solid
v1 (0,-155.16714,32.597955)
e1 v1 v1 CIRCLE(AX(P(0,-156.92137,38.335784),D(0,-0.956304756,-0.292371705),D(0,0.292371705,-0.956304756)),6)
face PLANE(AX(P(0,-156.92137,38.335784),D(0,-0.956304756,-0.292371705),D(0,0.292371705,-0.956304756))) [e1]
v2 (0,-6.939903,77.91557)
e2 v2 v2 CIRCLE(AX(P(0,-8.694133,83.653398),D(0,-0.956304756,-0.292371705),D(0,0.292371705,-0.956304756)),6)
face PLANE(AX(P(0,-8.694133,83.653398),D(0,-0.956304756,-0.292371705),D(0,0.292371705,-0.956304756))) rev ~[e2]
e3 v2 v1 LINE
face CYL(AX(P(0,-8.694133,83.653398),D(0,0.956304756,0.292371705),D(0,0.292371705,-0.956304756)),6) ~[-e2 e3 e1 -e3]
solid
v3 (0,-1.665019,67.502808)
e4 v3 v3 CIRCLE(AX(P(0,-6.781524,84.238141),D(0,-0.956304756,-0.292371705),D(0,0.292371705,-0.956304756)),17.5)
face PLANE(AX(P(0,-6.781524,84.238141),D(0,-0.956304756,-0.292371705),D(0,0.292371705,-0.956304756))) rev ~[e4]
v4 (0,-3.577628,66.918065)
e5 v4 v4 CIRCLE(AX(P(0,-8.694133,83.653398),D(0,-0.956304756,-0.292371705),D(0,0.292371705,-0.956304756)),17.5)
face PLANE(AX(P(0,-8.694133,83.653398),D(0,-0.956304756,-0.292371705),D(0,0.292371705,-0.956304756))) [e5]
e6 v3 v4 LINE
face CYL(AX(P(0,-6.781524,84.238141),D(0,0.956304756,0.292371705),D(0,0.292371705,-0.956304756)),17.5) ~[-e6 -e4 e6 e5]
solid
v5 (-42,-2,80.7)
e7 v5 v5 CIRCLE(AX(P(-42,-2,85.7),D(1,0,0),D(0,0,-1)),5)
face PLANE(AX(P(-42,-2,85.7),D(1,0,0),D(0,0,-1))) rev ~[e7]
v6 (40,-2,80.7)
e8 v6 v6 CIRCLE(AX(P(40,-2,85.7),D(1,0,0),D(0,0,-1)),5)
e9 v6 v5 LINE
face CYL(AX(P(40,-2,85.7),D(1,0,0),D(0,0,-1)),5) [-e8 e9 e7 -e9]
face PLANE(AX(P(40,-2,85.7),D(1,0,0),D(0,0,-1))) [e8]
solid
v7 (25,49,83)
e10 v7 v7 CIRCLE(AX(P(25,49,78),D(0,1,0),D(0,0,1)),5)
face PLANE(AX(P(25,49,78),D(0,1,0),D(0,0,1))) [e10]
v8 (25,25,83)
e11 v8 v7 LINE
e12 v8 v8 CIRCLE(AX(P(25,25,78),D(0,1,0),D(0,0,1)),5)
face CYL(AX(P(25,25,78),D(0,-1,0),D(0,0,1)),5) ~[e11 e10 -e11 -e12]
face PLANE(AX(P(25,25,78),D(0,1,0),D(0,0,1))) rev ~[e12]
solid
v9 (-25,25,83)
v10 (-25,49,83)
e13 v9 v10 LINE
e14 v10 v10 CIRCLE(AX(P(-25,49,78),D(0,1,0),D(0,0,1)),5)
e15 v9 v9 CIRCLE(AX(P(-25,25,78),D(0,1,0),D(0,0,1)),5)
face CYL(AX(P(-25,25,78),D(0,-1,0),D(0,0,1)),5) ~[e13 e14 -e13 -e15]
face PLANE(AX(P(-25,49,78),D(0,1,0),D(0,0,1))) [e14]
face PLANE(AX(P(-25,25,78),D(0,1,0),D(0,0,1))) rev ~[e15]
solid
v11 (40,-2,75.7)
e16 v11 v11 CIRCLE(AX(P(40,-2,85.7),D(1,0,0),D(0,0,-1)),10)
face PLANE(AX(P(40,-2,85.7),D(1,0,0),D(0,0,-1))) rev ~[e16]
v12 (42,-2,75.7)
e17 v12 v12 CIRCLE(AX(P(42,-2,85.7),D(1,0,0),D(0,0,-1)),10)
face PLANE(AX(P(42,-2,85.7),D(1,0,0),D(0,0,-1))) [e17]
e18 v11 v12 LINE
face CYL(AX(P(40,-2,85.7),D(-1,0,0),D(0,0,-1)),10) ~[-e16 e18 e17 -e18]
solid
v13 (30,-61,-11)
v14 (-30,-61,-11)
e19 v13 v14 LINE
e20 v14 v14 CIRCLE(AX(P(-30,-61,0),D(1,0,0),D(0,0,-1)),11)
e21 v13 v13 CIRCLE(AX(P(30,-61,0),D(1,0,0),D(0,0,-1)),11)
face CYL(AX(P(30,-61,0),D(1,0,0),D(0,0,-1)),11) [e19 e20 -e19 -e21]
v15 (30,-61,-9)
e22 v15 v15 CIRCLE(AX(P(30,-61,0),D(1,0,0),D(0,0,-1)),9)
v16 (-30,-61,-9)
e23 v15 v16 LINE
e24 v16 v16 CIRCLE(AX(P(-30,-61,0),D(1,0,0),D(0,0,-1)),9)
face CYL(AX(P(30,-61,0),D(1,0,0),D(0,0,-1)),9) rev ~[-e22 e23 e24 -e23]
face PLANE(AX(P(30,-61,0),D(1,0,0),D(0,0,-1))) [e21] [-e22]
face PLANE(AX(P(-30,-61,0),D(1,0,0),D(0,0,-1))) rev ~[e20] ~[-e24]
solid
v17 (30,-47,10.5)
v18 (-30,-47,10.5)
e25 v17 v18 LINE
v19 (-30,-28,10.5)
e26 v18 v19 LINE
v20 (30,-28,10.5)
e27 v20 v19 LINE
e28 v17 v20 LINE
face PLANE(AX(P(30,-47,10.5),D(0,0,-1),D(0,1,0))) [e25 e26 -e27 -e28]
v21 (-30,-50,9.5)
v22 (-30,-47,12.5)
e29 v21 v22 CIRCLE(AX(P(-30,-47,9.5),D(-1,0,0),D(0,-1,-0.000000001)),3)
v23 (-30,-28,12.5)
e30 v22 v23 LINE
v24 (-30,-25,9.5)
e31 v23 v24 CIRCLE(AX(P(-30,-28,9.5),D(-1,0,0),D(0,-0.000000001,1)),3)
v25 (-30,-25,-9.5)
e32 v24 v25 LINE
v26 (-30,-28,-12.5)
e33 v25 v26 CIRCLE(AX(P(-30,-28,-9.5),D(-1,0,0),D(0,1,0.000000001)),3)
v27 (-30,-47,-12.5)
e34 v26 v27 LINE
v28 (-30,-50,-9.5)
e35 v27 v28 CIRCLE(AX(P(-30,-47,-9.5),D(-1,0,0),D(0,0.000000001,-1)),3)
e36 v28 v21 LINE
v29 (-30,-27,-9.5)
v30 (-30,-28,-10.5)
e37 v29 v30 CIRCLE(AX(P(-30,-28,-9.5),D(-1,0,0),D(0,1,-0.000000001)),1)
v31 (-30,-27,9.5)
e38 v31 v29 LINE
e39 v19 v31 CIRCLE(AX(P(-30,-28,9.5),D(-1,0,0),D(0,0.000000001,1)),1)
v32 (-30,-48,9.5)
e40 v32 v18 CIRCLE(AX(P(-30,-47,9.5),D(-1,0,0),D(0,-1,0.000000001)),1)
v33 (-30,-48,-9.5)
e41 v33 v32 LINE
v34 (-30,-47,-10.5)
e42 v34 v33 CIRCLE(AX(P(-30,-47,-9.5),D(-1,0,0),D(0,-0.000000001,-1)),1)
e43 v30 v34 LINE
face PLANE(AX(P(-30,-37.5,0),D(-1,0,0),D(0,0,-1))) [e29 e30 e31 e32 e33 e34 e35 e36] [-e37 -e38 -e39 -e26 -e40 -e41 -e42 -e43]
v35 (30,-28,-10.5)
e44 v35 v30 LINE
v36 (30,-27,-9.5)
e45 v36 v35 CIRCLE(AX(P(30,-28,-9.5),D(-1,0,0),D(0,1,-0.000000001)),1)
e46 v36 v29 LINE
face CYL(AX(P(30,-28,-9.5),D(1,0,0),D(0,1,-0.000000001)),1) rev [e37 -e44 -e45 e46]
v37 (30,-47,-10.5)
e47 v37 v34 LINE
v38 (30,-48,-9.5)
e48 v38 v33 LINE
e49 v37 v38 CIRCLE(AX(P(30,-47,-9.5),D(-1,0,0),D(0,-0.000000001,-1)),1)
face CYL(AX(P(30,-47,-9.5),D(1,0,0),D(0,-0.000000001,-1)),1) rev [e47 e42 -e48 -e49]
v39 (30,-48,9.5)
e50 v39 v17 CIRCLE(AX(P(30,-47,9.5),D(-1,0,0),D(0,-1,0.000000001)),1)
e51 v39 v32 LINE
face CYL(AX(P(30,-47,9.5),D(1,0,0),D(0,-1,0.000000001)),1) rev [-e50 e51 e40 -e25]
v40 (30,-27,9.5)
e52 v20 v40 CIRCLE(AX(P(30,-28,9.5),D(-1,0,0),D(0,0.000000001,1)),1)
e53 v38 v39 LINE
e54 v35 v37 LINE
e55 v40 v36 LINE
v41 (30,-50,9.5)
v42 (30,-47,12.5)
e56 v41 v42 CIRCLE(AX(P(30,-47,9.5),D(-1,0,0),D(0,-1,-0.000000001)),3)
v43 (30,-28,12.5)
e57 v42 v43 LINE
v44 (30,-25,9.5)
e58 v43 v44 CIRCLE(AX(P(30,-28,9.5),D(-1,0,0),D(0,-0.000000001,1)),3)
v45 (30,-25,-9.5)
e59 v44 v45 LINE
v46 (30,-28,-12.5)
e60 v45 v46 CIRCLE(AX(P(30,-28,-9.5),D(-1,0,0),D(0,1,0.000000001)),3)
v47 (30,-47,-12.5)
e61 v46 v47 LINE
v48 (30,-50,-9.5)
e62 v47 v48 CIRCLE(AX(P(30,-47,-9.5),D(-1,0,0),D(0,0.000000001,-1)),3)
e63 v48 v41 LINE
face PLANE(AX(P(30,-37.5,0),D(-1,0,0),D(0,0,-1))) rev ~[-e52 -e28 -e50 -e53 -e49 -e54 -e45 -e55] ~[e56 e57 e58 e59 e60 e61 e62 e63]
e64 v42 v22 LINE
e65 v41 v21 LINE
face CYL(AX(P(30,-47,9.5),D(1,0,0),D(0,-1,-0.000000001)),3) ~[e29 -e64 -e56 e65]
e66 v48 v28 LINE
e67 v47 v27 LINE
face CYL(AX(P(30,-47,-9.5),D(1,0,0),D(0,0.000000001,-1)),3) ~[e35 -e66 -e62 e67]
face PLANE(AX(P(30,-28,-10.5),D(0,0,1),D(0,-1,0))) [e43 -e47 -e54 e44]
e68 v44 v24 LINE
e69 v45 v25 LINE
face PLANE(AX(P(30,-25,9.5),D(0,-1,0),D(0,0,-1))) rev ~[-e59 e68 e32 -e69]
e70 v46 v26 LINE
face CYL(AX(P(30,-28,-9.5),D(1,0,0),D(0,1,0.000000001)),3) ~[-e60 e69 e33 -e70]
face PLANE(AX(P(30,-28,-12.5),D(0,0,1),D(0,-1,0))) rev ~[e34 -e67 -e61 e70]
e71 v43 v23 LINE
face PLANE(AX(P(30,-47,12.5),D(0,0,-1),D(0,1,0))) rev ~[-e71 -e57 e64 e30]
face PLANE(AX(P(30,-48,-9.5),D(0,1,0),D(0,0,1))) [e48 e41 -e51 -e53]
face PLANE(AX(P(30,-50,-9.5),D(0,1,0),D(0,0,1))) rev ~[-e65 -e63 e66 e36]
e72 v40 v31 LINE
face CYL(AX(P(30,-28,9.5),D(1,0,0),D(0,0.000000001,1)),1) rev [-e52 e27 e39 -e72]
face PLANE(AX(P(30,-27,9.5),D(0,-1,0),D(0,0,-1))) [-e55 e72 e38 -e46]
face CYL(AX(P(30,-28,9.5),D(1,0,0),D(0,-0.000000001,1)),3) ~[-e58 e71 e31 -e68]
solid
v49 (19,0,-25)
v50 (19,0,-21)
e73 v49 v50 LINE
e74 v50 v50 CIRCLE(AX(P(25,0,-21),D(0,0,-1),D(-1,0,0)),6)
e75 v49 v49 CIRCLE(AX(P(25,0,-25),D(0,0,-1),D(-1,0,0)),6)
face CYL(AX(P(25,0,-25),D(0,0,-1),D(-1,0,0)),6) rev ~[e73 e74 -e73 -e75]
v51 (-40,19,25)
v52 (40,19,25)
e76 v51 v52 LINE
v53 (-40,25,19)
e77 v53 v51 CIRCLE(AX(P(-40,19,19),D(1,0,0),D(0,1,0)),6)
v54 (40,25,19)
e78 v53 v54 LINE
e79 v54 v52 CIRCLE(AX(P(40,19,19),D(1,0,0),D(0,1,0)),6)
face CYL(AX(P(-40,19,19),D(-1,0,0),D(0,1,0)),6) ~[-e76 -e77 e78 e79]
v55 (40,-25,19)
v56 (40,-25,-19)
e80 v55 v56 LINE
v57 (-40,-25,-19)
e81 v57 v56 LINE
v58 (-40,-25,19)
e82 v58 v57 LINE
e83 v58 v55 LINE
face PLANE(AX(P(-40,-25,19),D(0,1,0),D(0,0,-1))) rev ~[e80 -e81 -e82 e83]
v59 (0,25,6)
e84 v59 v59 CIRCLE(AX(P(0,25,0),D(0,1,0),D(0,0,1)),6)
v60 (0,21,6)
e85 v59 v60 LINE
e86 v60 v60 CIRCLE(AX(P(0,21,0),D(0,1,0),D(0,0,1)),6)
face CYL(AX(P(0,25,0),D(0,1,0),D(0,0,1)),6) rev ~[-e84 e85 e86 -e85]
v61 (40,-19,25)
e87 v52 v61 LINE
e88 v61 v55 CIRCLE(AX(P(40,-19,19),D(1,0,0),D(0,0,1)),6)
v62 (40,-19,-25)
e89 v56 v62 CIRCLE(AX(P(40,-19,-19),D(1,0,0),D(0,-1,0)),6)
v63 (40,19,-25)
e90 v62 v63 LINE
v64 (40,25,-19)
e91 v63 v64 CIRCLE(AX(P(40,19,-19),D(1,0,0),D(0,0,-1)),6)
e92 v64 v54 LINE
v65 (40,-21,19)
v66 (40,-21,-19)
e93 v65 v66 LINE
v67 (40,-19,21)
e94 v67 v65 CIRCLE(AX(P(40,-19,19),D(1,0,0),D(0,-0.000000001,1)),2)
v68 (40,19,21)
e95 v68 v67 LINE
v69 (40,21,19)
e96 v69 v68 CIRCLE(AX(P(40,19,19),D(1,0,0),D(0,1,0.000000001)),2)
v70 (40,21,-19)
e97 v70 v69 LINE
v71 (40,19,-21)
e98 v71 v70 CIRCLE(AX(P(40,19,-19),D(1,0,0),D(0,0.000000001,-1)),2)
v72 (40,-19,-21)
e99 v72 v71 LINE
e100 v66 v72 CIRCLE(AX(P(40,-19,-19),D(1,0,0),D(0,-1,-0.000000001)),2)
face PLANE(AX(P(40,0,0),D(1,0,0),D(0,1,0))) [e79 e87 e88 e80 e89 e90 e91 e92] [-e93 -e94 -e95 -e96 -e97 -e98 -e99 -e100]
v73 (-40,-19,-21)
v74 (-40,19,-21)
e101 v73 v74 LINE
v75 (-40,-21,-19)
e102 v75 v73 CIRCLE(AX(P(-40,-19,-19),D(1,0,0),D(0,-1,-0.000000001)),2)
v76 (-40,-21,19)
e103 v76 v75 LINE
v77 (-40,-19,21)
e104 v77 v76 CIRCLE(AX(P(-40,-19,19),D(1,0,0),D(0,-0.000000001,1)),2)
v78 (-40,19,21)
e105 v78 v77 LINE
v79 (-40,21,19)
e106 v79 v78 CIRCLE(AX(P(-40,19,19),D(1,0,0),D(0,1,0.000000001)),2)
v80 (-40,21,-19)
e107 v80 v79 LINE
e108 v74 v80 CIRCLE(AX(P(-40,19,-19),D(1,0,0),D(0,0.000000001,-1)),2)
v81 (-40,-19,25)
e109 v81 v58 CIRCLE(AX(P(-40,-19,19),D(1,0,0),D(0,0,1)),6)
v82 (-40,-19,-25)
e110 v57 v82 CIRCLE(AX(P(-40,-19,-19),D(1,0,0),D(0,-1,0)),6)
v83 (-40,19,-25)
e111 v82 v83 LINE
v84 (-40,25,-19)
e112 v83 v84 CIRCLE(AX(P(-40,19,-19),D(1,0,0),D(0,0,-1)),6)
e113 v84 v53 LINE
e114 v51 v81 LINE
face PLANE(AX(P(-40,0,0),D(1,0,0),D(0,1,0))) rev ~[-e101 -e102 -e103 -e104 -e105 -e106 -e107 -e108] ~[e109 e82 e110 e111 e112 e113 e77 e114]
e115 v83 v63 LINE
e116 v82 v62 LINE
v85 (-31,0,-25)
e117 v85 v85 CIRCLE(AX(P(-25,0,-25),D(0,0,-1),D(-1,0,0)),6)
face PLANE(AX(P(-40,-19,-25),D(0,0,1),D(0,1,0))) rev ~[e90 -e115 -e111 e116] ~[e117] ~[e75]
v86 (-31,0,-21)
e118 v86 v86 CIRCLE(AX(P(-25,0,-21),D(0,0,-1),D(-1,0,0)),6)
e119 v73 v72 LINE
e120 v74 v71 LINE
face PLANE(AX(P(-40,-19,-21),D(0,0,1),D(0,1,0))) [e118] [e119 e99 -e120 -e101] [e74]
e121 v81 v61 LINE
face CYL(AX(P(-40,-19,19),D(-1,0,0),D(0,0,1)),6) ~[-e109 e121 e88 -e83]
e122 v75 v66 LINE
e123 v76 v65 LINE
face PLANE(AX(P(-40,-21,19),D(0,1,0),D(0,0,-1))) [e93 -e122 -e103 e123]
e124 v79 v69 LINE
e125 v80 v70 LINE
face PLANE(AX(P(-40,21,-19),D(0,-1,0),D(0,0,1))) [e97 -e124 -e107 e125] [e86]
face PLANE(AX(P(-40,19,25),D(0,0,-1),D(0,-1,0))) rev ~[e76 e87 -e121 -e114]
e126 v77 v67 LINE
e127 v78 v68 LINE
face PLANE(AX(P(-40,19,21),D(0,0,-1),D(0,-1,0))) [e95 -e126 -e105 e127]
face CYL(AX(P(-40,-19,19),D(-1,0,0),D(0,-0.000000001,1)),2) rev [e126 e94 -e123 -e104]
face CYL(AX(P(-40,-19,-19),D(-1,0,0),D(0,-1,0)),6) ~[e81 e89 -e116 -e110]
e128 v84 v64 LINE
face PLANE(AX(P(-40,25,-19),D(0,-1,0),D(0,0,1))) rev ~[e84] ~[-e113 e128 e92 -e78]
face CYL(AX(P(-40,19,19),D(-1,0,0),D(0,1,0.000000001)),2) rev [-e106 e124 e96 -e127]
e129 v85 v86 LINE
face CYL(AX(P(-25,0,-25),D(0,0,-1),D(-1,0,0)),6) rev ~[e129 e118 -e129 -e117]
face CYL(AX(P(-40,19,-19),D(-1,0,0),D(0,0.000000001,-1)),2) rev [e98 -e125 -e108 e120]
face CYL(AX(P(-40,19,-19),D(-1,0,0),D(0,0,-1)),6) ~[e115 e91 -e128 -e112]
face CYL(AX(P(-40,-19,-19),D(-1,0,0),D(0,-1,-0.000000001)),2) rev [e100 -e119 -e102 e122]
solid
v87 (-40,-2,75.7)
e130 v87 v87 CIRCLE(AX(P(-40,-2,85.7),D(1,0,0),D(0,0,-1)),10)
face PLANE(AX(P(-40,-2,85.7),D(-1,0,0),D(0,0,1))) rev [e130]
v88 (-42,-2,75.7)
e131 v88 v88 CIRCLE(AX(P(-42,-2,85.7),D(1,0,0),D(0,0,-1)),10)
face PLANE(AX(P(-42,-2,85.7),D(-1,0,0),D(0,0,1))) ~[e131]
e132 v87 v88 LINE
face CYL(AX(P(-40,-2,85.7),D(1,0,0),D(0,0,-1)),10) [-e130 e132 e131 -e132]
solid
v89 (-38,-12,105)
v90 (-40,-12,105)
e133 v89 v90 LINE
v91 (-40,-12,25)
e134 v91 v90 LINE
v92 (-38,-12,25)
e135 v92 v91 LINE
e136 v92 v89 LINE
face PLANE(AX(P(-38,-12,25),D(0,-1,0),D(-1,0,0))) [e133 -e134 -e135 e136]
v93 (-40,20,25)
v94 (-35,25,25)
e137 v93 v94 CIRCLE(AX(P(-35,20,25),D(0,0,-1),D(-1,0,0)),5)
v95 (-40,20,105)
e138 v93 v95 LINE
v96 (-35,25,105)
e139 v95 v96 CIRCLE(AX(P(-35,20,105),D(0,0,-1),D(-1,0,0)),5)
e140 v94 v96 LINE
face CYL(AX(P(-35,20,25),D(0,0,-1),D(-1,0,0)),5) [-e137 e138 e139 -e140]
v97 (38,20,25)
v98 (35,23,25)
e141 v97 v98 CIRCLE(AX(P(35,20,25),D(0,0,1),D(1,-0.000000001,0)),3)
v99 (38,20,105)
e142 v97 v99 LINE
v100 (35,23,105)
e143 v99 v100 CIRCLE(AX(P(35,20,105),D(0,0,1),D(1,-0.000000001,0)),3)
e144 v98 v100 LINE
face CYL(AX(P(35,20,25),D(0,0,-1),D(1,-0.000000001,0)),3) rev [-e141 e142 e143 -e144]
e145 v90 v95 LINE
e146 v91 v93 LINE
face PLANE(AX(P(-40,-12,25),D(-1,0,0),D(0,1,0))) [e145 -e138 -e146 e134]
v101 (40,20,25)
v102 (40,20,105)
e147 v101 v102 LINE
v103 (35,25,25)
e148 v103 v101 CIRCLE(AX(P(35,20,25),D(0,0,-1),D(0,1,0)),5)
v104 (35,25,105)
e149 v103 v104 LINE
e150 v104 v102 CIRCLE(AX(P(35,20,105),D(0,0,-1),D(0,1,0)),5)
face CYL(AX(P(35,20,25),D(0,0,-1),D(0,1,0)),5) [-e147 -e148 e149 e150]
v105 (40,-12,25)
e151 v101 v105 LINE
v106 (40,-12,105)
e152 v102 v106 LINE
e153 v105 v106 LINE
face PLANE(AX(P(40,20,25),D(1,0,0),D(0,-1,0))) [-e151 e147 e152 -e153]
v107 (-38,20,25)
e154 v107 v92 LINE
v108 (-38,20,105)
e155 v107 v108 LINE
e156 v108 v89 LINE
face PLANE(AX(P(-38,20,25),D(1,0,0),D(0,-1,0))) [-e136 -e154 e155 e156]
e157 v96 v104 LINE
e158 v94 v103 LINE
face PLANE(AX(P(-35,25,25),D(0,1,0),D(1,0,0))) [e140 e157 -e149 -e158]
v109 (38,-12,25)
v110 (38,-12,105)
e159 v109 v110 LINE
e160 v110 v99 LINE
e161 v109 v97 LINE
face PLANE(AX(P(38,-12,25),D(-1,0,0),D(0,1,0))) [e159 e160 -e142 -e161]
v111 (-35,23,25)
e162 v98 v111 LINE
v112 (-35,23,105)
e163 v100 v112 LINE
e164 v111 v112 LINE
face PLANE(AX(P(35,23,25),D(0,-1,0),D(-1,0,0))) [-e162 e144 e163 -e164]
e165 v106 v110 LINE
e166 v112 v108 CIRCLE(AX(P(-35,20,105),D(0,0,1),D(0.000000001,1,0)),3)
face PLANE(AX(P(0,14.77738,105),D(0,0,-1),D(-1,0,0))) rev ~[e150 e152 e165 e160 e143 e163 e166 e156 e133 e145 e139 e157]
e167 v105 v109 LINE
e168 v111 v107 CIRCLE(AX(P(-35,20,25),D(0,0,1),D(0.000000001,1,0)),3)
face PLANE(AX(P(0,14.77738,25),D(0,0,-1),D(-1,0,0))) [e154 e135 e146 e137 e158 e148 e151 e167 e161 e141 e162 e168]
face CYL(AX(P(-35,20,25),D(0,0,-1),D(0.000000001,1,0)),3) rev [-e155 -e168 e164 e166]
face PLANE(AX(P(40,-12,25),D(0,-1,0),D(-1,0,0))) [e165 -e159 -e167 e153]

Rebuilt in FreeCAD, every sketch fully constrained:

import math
import FreeCAD as App
import Part
import Sketcher

doc = App.newDocument("Part")
body = doc.addObject("PartDesign::Body", "Body")

# Sketch on YZ plane
sketch1 = doc.addObject("Sketcher::SketchObject", "Sketch")
body.addObject(sketch1)
sketch1.AttachmentSupport = (doc.YZ_Plane, [""])
sketch1.MapMode = "FlatFace"
sketch1.AttachmentOffset = App.Placement(App.Vector(0, 0, -40), App.Rotation())
sketch1.addGeometry(Part.LineSegment(App.Vector(-19, -25, 0), App.Vector(19, -25, 0)), False)
sketch1.addGeometry(Part.ArcOfCircle(Part.Circle(App.Vector(19, -19, 0), App.Vector(0, 0, 1), 6), math.radians(-90), math.radians(0)), False)
sketch1.addGeometry(Part.LineSegment(App.Vector(25, -19, 0), App.Vector(25, 19, 0)), False)
sketch1.addGeometry(Part.ArcOfCircle(Part.Circle(App.Vector(19, 19, 0), App.Vector(0, 0, 1), 6), math.radians(0), math.radians(90)), False)
sketch1.addGeometry(Part.LineSegment(App.Vector(19, 25, 0), App.Vector(-19, 25, 0)), False)
sketch1.addGeometry(Part.ArcOfCircle(Part.Circle(App.Vector(-19, 19, 0), App.Vector(0, 0, 1), 6), math.radians(90), math.radians(180)), False)
sketch1.addGeometry(Part.LineSegment(App.Vector(-25, 19, 0), App.Vector(-25, -19, 0)), False)
sketch1.addGeometry(Part.ArcOfCircle(Part.Circle(App.Vector(-19, -19, 0), App.Vector(0, 0, 1), 6), math.radians(180), math.radians(270)), False)
sketch1.addGeometry(Part.LineSegment(App.Vector(19, -21, 0), App.Vector(-19, -21, 0)), False)
sketch1.addGeometry(Part.ArcOfCircle(Part.Circle(App.Vector(-19, -19, 0), App.Vector(0, 0, 1), 2), math.radians(-180), math.radians(-90)), False)
sketch1.addGeometry(Part.LineSegment(App.Vector(-21, -19, 0), App.Vector(-21, 19, 0)), False)
sketch1.addGeometry(Part.ArcOfCircle(Part.Circle(App.Vector(-19, 19, 0), App.Vector(0, 0, 1), 2), math.radians(90), math.radians(180)), False)
sketch1.addGeometry(Part.LineSegment(App.Vector(-19, 21, 0), App.Vector(19, 21, 0)), False)
sketch1.addGeometry(Part.ArcOfCircle(Part.Circle(App.Vector(19, 19, 0), App.Vector(0, 0, 1), 2), math.radians(0), math.radians(90)), False)
sketch1.addGeometry(Part.LineSegment(App.Vector(21, 19, 0), App.Vector(21, -19, 0)), False)
sketch1.addGeometry(Part.ArcOfCircle(Part.Circle(App.Vector(19, -19, 0), App.Vector(0, 0, 1), 2), math.radians(-90), math.radians(0)), False)
sketch1.addConstraint(Sketcher.Constraint("Tangent", 0, 2, 1, 1))
sketch1.addConstraint(Sketcher.Constraint("Tangent", 1, 2, 2, 1))
sketch1.addConstraint(Sketcher.Constraint("Tangent", 2, 2, 3, 1))
sketch1.addConstraint(Sketcher.Constraint("Tangent", 3, 2, 4, 1))
sketch1.addConstraint(Sketcher.Constraint("Tangent", 4, 2, 5, 1))
sketch1.addConstraint(Sketcher.Constraint("Tangent", 5, 2, 6, 1))
sketch1.addConstraint(Sketcher.Constraint("Tangent", 6, 2, 7, 1))
sketch1.addConstraint(Sketcher.Constraint("Tangent", 7, 2, 0, 1))
sketch1.addConstraint(Sketcher.Constraint("Tangent", 8, 2, 9, 2))
sketch1.addConstraint(Sketcher.Constraint("Tangent", 9, 1, 10, 1))
sketch1.addConstraint(Sketcher.Constraint("Tangent", 10, 2, 11, 2))
sketch1.addConstraint(Sketcher.Constraint("Tangent", 11, 1, 12, 1))
sketch1.addConstraint(Sketcher.Constraint("Tangent", 12, 2, 13, 2))
sketch1.addConstraint(Sketcher.Constraint("Tangent", 13, 1, 14, 1))
sketch1.addConstraint(Sketcher.Constraint("Tangent", 14, 2, 15, 2))
sketch1.addConstraint(Sketcher.Constraint("Tangent", 15, 1, 8, 1))
sketch1.addConstraint(Sketcher.Constraint("Horizontal", 0))
sketch1.addConstraint(Sketcher.Constraint("Vertical", 2))
sketch1.addConstraint(Sketcher.Constraint("Horizontal", 4))
sketch1.addConstraint(Sketcher.Constraint("Vertical", 6))
sketch1.addConstraint(Sketcher.Constraint("Horizontal", 8))
sketch1.addConstraint(Sketcher.Constraint("Vertical", 10))
sketch1.addConstraint(Sketcher.Constraint("Horizontal", 12))
sketch1.addConstraint(Sketcher.Constraint("Vertical", 14))
sketch1.addConstraint(Sketcher.Constraint("Coincident", 9, 3, 7, 3))
sketch1.addConstraint(Sketcher.Constraint("Coincident", 11, 3, 5, 3))
sketch1.addConstraint(Sketcher.Constraint("Coincident", 13, 3, 3, 3))
sketch1.addConstraint(Sketcher.Constraint("Equal", 1, 3))
sketch1.addConstraint(Sketcher.Constraint("Equal", 3, 5))
sketch1.addConstraint(Sketcher.Constraint("Equal", 5, 7))
sketch1.addConstraint(Sketcher.Constraint("Equal", 13, 15))
sketch1.addConstraint(Sketcher.Constraint("Symmetric", 1, 3, 5, 3, -1, 1))
sketch1.addConstraint(Sketcher.Constraint("Equal", 12, 2))
sketch1.addConstraint(Sketcher.Constraint("Radius", 1, 6.0))
sketch1.addConstraint(Sketcher.Constraint("Radius", 9, 2.0))
sketch1.addConstraint(Sketcher.Constraint("DistanceX", 0, 1, 0, 2, 38.0))
pad1 = doc.addObject("PartDesign::Pad", "Pad")
body.addObject(pad1)
pad1.Profile = sketch1
pad1.Length = 80

# Sketch on XZ plane
sketch2 = doc.addObject("Sketcher::SketchObject", "Sketch001")
body.addObject(sketch2)
sketch2.AttachmentSupport = (doc.XZ_Plane, [""])
sketch2.MapMode = "FlatFace"
sketch2.AttachmentOffset = App.Placement(App.Vector(0, 0, -25), App.Rotation())
sketch2.addGeometry(Part.Circle(App.Vector(0, 0, 0), App.Vector(0, 0, 1), 6), False)
sketch2.addConstraint(Sketcher.Constraint("Coincident", 0, 3, -1, 1))
sketch2.addConstraint(Sketcher.Constraint("Diameter", 0, 12.0))
pocket1 = doc.addObject("PartDesign::Pocket", "Pocket")
body.addObject(pocket1)
pocket1.Profile = sketch2
pocket1.Length = 4
pocket1.Reversed = True

# Sketch on XY plane
sketch3 = doc.addObject("Sketcher::SketchObject", "Sketch002")
body.addObject(sketch3)
sketch3.AttachmentSupport = (doc.XY_Plane, [""])
sketch3.MapMode = "FlatFace"
sketch3.AttachmentOffset = App.Placement(App.Vector(0, 0, -25), App.Rotation())
sketch3.addGeometry(Part.Circle(App.Vector(-25, 0, 0), App.Vector(0, 0, 1), 6), False)
sketch3.addGeometry(Part.Circle(App.Vector(25, 0, 0), App.Vector(0, 0, 1), 6), False)
sketch3.addConstraint(Sketcher.Constraint("Equal", 0, 1))
sketch3.addConstraint(Sketcher.Constraint("Symmetric", 0, 3, 1, 3, -1, 1))
sketch3.addConstraint(Sketcher.Constraint("PointOnObject", 0, 3, -1))
sketch3.addConstraint(Sketcher.Constraint("Diameter", 0, 12.0))
sketch3.addConstraint(Sketcher.Constraint("DistanceX", 0, 3, -1, 1, 25.0))
pocket2 = doc.addObject("PartDesign::Pocket", "Pocket001")
body.addObject(pocket2)
pocket2.Profile = sketch3
pocket2.Length = 4
pocket2.Reversed = True
body2 = doc.addObject("PartDesign::Body", "Body001")

# Sketch on XY plane
sketch4 = doc.addObject("Sketcher::SketchObject", "Sketch003")
body2.addObject(sketch4)
sketch4.AttachmentSupport = (doc.getObject("XY_Plane001"), [""])
sketch4.MapMode = "FlatFace"
sketch4.AttachmentOffset = App.Placement(App.Vector(0, 0, 25), App.Rotation())
sketch4.addGeometry(Part.LineSegment(App.Vector(-40, 20, 0), App.Vector(-40, -12, 0)), False)
sketch4.addGeometry(Part.LineSegment(App.Vector(-40, -12, 0), App.Vector(-38, -12, 0)), False)
sketch4.addGeometry(Part.LineSegment(App.Vector(-38, -12, 0), App.Vector(-38, 20, 0)), False)
sketch4.addGeometry(Part.ArcOfCircle(Part.Circle(App.Vector(-35, 20, 0), App.Vector(0, 0, 1), 3), math.radians(90), math.radians(180)), False)
sketch4.addGeometry(Part.LineSegment(App.Vector(-35, 23, 0), App.Vector(35, 23, 0)), False)
sketch4.addGeometry(Part.ArcOfCircle(Part.Circle(App.Vector(35, 20, 0), App.Vector(0, 0, 1), 3), math.radians(0), math.radians(90)), False)
sketch4.addGeometry(Part.LineSegment(App.Vector(38, 20, 0), App.Vector(38, -12, 0)), False)
sketch4.addGeometry(Part.LineSegment(App.Vector(38, -12, 0), App.Vector(40, -12, 0)), False)
sketch4.addGeometry(Part.LineSegment(App.Vector(40, -12, 0), App.Vector(40, 20, 0)), False)
sketch4.addGeometry(Part.ArcOfCircle(Part.Circle(App.Vector(35, 20, 0), App.Vector(0, 0, 1), 5), math.radians(0), math.radians(90)), False)
sketch4.addGeometry(Part.LineSegment(App.Vector(35, 25, 0), App.Vector(-35, 25, 0)), False)
sketch4.addGeometry(Part.ArcOfCircle(Part.Circle(App.Vector(-35, 20, 0), App.Vector(0, 0, 1), 5), math.radians(90), math.radians(180)), False)
sketch4.addConstraint(Sketcher.Constraint("Coincident", 0, 2, 1, 1))
sketch4.addConstraint(Sketcher.Constraint("Coincident", 1, 2, 2, 1))
sketch4.addConstraint(Sketcher.Constraint("Tangent", 2, 2, 3, 2))
sketch4.addConstraint(Sketcher.Constraint("Tangent", 3, 1, 4, 1))
sketch4.addConstraint(Sketcher.Constraint("Tangent", 4, 2, 5, 2))
sketch4.addConstraint(Sketcher.Constraint("Tangent", 5, 1, 6, 1))
sketch4.addConstraint(Sketcher.Constraint("Coincident", 6, 2, 7, 1))
sketch4.addConstraint(Sketcher.Constraint("Coincident", 7, 2, 8, 1))
sketch4.addConstraint(Sketcher.Constraint("Tangent", 8, 2, 9, 1))
sketch4.addConstraint(Sketcher.Constraint("Tangent", 9, 2, 10, 1))
sketch4.addConstraint(Sketcher.Constraint("Tangent", 10, 2, 11, 1))
sketch4.addConstraint(Sketcher.Constraint("Tangent", 11, 2, 0, 1))
sketch4.addConstraint(Sketcher.Constraint("Vertical", 0))
sketch4.addConstraint(Sketcher.Constraint("Horizontal", 1))
sketch4.addConstraint(Sketcher.Constraint("Vertical", 2))
sketch4.addConstraint(Sketcher.Constraint("Horizontal", 4))
sketch4.addConstraint(Sketcher.Constraint("Vertical", 6))
sketch4.addConstraint(Sketcher.Constraint("Horizontal", 7))
sketch4.addConstraint(Sketcher.Constraint("Vertical", 8))
sketch4.addConstraint(Sketcher.Constraint("Horizontal", 10))
sketch4.addConstraint(Sketcher.Constraint("Coincident", 9, 3, 5, 3))
sketch4.addConstraint(Sketcher.Constraint("Coincident", 11, 3, 3, 3))
sketch4.addConstraint(Sketcher.Constraint("Equal", 3, 5))
sketch4.addConstraint(Sketcher.Constraint("Symmetric", 1, 2, 6, 2, -2))
sketch4.addConstraint(Sketcher.Constraint("Radius", 3, 3.0))
sketch4.addConstraint(Sketcher.Constraint("Radius", 9, 5.0))
sketch4.addConstraint(Sketcher.Constraint("DistanceX", 4, 1, 4, 2, 70.0))
sketch4.addConstraint(Sketcher.Constraint("DistanceY", 0, 2, 0, 1, 32.0))
sketch4.addConstraint(Sketcher.Constraint("DistanceY", -1, 1, 3, 3, 20.0))
pad2 = doc.addObject("PartDesign::Pad", "Pad001")
body2.addObject(pad2)
pad2.Profile = sketch4
pad2.Length = 80
body3 = doc.addObject("PartDesign::Body", "Body002")

# Sketch on YZ plane
sketch5 = doc.addObject("Sketcher::SketchObject", "Sketch004")
body3.addObject(sketch5)
sketch5.AttachmentSupport = (doc.getObject("YZ_Plane002"), [""])
sketch5.MapMode = "FlatFace"
sketch5.AttachmentOffset = App.Placement(App.Vector(0, 0, 30), App.Rotation())
sketch5.addGeometry(Part.LineSegment(App.Vector(-25, 9.5, 0), App.Vector(-25, -9.5, 0)), False)
sketch5.addGeometry(Part.ArcOfCircle(Part.Circle(App.Vector(-28, -9.5, 0), App.Vector(0, 0, 1), 3), math.radians(-90), math.radians(0)), False)
sketch5.addGeometry(Part.LineSegment(App.Vector(-28, -12.5, 0), App.Vector(-47, -12.5, 0)), False)
sketch5.addGeometry(Part.ArcOfCircle(Part.Circle(App.Vector(-47, -9.5, 0), App.Vector(0, 0, 1), 3), math.radians(180), math.radians(270)), False)
sketch5.addGeometry(Part.LineSegment(App.Vector(-50, -9.5, 0), App.Vector(-50, 9.5, 0)), False)
sketch5.addGeometry(Part.ArcOfCircle(Part.Circle(App.Vector(-47, 9.5, 0), App.Vector(0, 0, 1), 3), math.radians(90), math.radians(180)), False)
sketch5.addGeometry(Part.LineSegment(App.Vector(-47, 12.5, 0), App.Vector(-28, 12.5, 0)), False)
sketch5.addGeometry(Part.ArcOfCircle(Part.Circle(App.Vector(-28, 9.5, 0), App.Vector(0, 0, 1), 3), math.radians(0), math.radians(90)), False)
sketch5.addGeometry(Part.LineSegment(App.Vector(-27, -9.5, 0), App.Vector(-27, 9.5, 0)), False)
sketch5.addGeometry(Part.ArcOfCircle(Part.Circle(App.Vector(-28, 9.5, 0), App.Vector(0, 0, 1), 1), math.radians(0), math.radians(90)), False)
sketch5.addGeometry(Part.LineSegment(App.Vector(-28, 10.5, 0), App.Vector(-47, 10.5, 0)), False)
sketch5.addGeometry(Part.ArcOfCircle(Part.Circle(App.Vector(-47, 9.5, 0), App.Vector(0, 0, 1), 1), math.radians(90), math.radians(180)), False)
sketch5.addGeometry(Part.LineSegment(App.Vector(-48, 9.5, 0), App.Vector(-48, -9.5, 0)), False)
sketch5.addGeometry(Part.ArcOfCircle(Part.Circle(App.Vector(-47, -9.5, 0), App.Vector(0, 0, 1), 1), math.radians(-180), math.radians(-90)), False)
sketch5.addGeometry(Part.LineSegment(App.Vector(-47, -10.5, 0), App.Vector(-28, -10.5, 0)), False)
sketch5.addGeometry(Part.ArcOfCircle(Part.Circle(App.Vector(-28, -9.5, 0), App.Vector(0, 0, 1), 1), math.radians(-90), math.radians(0)), False)
sketch5.addConstraint(Sketcher.Constraint("Tangent", 0, 2, 1, 2))
sketch5.addConstraint(Sketcher.Constraint("Tangent", 1, 1, 2, 1))
sketch5.addConstraint(Sketcher.Constraint("Tangent", 2, 2, 3, 2))
sketch5.addConstraint(Sketcher.Constraint("Tangent", 3, 1, 4, 1))
sketch5.addConstraint(Sketcher.Constraint("Tangent", 4, 2, 5, 2))
sketch5.addConstraint(Sketcher.Constraint("Tangent", 5, 1, 6, 1))
sketch5.addConstraint(Sketcher.Constraint("Tangent", 6, 2, 7, 2))
sketch5.addConstraint(Sketcher.Constraint("Tangent", 7, 1, 0, 1))
sketch5.addConstraint(Sketcher.Constraint("Tangent", 8, 2, 9, 1))
sketch5.addConstraint(Sketcher.Constraint("Tangent", 9, 2, 10, 1))
sketch5.addConstraint(Sketcher.Constraint("Tangent", 10, 2, 11, 1))
sketch5.addConstraint(Sketcher.Constraint("Tangent", 11, 2, 12, 1))
sketch5.addConstraint(Sketcher.Constraint("Tangent", 12, 2, 13, 1))
sketch5.addConstraint(Sketcher.Constraint("Tangent", 13, 2, 14, 1))
sketch5.addConstraint(Sketcher.Constraint("Tangent", 14, 2, 15, 1))
sketch5.addConstraint(Sketcher.Constraint("Tangent", 15, 2, 8, 1))
sketch5.addConstraint(Sketcher.Constraint("Vertical", 0))
sketch5.addConstraint(Sketcher.Constraint("Horizontal", 2))
sketch5.addConstraint(Sketcher.Constraint("Vertical", 4))
sketch5.addConstraint(Sketcher.Constraint("Horizontal", 6))
sketch5.addConstraint(Sketcher.Constraint("Vertical", 8))
sketch5.addConstraint(Sketcher.Constraint("Horizontal", 10))
sketch5.addConstraint(Sketcher.Constraint("Vertical", 12))
sketch5.addConstraint(Sketcher.Constraint("Horizontal", 14))
sketch5.addConstraint(Sketcher.Constraint("Coincident", 9, 3, 7, 3))
sketch5.addConstraint(Sketcher.Constraint("Coincident", 11, 3, 5, 3))
sketch5.addConstraint(Sketcher.Constraint("Coincident", 13, 3, 3, 3))
sketch5.addConstraint(Sketcher.Constraint("Equal", 1, 3))
sketch5.addConstraint(Sketcher.Constraint("Equal", 3, 5))
sketch5.addConstraint(Sketcher.Constraint("Equal", 5, 7))
sketch5.addConstraint(Sketcher.Constraint("Equal", 13, 15))
sketch5.addConstraint(Sketcher.Constraint("Equal", 14, 0))
sketch5.addConstraint(Sketcher.Constraint("Radius", 1, 3.0))
sketch5.addConstraint(Sketcher.Constraint("Radius", 9, 1.0))
sketch5.addConstraint(Sketcher.Constraint("DistanceX", 2, 2, 2, 1, 19.0))
sketch5.addConstraint(Sketcher.Constraint("DistanceX", 1, 3, -1, 1, 28.0))
sketch5.addConstraint(Sketcher.Constraint("DistanceY", 1, 3, -1, 1, 9.5))
pad3 = doc.addObject("PartDesign::Pad", "Pad002")
body3.addObject(pad3)
pad3.Profile = sketch5
pad3.Length = 60
pad3.Reversed = True
body4 = doc.addObject("PartDesign::Body", "Body003")

# Sketch on YZ plane
sketch6 = doc.addObject("Sketcher::SketchObject", "Sketch005")
body4.addObject(sketch6)
sketch6.AttachmentSupport = (doc.getObject("YZ_Plane003"), [""])
sketch6.MapMode = "FlatFace"
sketch6.AttachmentOffset = App.Placement(App.Vector(0, 0, 30), App.Rotation())
sketch6.addGeometry(Part.Circle(App.Vector(-61, 0, 0), App.Vector(0, 0, 1), 11), False)
sketch6.addGeometry(Part.Circle(App.Vector(-61, 0, 0), App.Vector(0, 0, 1), 9), False)
sketch6.addConstraint(Sketcher.Constraint("Coincident", 1, 3, 0, 3))
sketch6.addConstraint(Sketcher.Constraint("PointOnObject", 0, 3, -1))
sketch6.addConstraint(Sketcher.Constraint("Diameter", 0, 22.0))
sketch6.addConstraint(Sketcher.Constraint("Diameter", 1, 18.0))
sketch6.addConstraint(Sketcher.Constraint("DistanceX", 0, 3, -1, 1, 61.0))
pad4 = doc.addObject("PartDesign::Pad", "Pad003")
body4.addObject(pad4)
pad4.Profile = sketch6
pad4.Length = 60
pad4.Reversed = True
body5 = doc.addObject("PartDesign::Body", "Body004")

# Sketch on YZ plane
sketch7 = doc.addObject("Sketcher::SketchObject", "Sketch006")
body5.addObject(sketch7)
sketch7.AttachmentSupport = (doc.getObject("YZ_Plane004"), [""])
sketch7.MapMode = "FlatFace"
sketch7.AttachmentOffset = App.Placement(App.Vector(0, 0, 40), App.Rotation())
sketch7.addGeometry(Part.Circle(App.Vector(-2, 85.7, 0), App.Vector(0, 0, 1), 10), False)
sketch7.addConstraint(Sketcher.Constraint("Diameter", 0, 20.0))
sketch7.addConstraint(Sketcher.Constraint("DistanceX", 0, 3, -1, 1, 2.0))
sketch7.addConstraint(Sketcher.Constraint("DistanceY", -1, 1, 0, 3, 85.7))
pad5 = doc.addObject("PartDesign::Pad", "Pad004")
body5.addObject(pad5)
pad5.Profile = sketch7
pad5.Length = 2
body6 = doc.addObject("PartDesign::Body", "Body005")
doc.recompute()

mirroring = doc.addObject("Part::Mirroring", "Mirroring")
mirroring.Source = body5
mirroring.Base = App.Vector(0, 0, 0)
mirroring.Normal = App.Vector(1, 0, 0)
body6.BaseFeature = mirroring
doc.recompute()
body7 = doc.addObject("PartDesign::Body", "Body006")

# Sketch on YZ plane
sketch8 = doc.addObject("Sketcher::SketchObject", "Sketch007")
body7.addObject(sketch8)
sketch8.AttachmentSupport = (doc.getObject("YZ_Plane006"), [""])
sketch8.MapMode = "FlatFace"
sketch8.AttachmentOffset = App.Placement(App.Vector(0, 0, 40), App.Rotation())
sketch8.addGeometry(Part.Circle(App.Vector(-2, 85.7, 0), App.Vector(0, 0, 1), 5), False)
sketch8.addConstraint(Sketcher.Constraint("Diameter", 0, 10.0))
sketch8.addConstraint(Sketcher.Constraint("DistanceX", 0, 3, -1, 1, 2.0))
sketch8.addConstraint(Sketcher.Constraint("DistanceY", -1, 1, 0, 3, 85.7))
pad6 = doc.addObject("PartDesign::Pad", "Pad005")
body7.addObject(pad6)
pad6.Profile = sketch8
pad6.Length = 82
pad6.Reversed = True
body8 = doc.addObject("PartDesign::Body", "Body007")

# Sketch on an angled plane
sketch9 = doc.addObject("Sketcher::SketchObject", "Sketch008")
body8.addObject(sketch9)
sketch9.Placement = App.Placement(App.Vector(0, 17.350855, 5.304689), App.Rotation(App.Vector(1, 0, 0), App.Vector(0, -0.292371705, 0.956304756), App.Vector(0, -0.956304756, -0.292371705), "ZXY"))
sketch9.addGeometry(Part.Circle(App.Vector(0, 82.540061, 0), App.Vector(0, 0, 1), 17.5), False)
sketch9.addConstraint(Sketcher.Constraint("PointOnObject", 0, 3, -2))
sketch9.addConstraint(Sketcher.Constraint("Diameter", 0, 35.0))
sketch9.addConstraint(Sketcher.Constraint("DistanceY", -1, 1, 0, 3, 82.540061))
pad7 = doc.addObject("PartDesign::Pad", "Pad006")
body8.addObject(pad7)
pad7.Profile = sketch9
pad7.Length = 2
body9 = doc.addObject("PartDesign::Body", "Body008")

# Sketch on XZ plane
sketch10 = doc.addObject("Sketcher::SketchObject", "Sketch009")
body9.addObject(sketch10)
sketch10.AttachmentSupport = (doc.getObject("XZ_Plane008"), [""])
sketch10.MapMode = "FlatFace"
sketch10.AttachmentOffset = App.Placement(App.Vector(0, 0, -25), App.Rotation())
sketch10.addGeometry(Part.Circle(App.Vector(-25, 78, 0), App.Vector(0, 0, 1), 5), False)
sketch10.addConstraint(Sketcher.Constraint("Diameter", 0, 10.0))
sketch10.addConstraint(Sketcher.Constraint("DistanceX", 0, 3, -1, 1, 25.0))
sketch10.addConstraint(Sketcher.Constraint("DistanceY", -1, 1, 0, 3, 78.0))
pad8 = doc.addObject("PartDesign::Pad", "Pad007")
body9.addObject(pad8)
pad8.Profile = sketch10
pad8.Length = 24
pad8.Reversed = True
body10 = doc.addObject("PartDesign::Body", "Body009")

# Sketch on XZ plane
sketch11 = doc.addObject("Sketcher::SketchObject", "Sketch010")
body10.addObject(sketch11)
sketch11.AttachmentSupport = (doc.getObject("XZ_Plane009"), [""])
sketch11.MapMode = "FlatFace"
sketch11.AttachmentOffset = App.Placement(App.Vector(0, 0, -25), App.Rotation())
sketch11.addGeometry(Part.Circle(App.Vector(25, 78, 0), App.Vector(0, 0, 1), 5), False)
sketch11.addConstraint(Sketcher.Constraint("Diameter", 0, 10.0))
sketch11.addConstraint(Sketcher.Constraint("DistanceX", -1, 1, 0, 3, 25.0))
sketch11.addConstraint(Sketcher.Constraint("DistanceY", -1, 1, 0, 3, 78.0))
pad9 = doc.addObject("PartDesign::Pad", "Pad008")
body10.addObject(pad9)
pad9.Profile = sketch11
pad9.Length = 24
pad9.Reversed = True
body11 = doc.addObject("PartDesign::Body", "Body010")

# Sketch on an angled plane
sketch12 = doc.addObject("Sketcher::SketchObject", "Sketch011")
body11.addObject(sketch12)
sketch12.Placement = App.Placement(App.Vector(0, 15.438245, 4.719945), App.Rotation(App.Vector(1, 0, 0), App.Vector(0, -0.292371705, 0.956304756), App.Vector(0, -0.956304756, -0.292371705), "ZXY"))
sketch12.addGeometry(Part.Circle(App.Vector(0, 82.540061, 0), App.Vector(0, 0, 1), 6), False)
sketch12.addConstraint(Sketcher.Constraint("PointOnObject", 0, 3, -2))
sketch12.addConstraint(Sketcher.Constraint("Diameter", 0, 12.0))
sketch12.addConstraint(Sketcher.Constraint("DistanceY", -1, 1, 0, 3, 82.540061))
pad10 = doc.addObject("PartDesign::Pad", "Pad009")
body11.addObject(pad10)
pad10.Profile = sketch12
pad10.Length = 155
mirroring.Visibility = False

doc.recompute()
